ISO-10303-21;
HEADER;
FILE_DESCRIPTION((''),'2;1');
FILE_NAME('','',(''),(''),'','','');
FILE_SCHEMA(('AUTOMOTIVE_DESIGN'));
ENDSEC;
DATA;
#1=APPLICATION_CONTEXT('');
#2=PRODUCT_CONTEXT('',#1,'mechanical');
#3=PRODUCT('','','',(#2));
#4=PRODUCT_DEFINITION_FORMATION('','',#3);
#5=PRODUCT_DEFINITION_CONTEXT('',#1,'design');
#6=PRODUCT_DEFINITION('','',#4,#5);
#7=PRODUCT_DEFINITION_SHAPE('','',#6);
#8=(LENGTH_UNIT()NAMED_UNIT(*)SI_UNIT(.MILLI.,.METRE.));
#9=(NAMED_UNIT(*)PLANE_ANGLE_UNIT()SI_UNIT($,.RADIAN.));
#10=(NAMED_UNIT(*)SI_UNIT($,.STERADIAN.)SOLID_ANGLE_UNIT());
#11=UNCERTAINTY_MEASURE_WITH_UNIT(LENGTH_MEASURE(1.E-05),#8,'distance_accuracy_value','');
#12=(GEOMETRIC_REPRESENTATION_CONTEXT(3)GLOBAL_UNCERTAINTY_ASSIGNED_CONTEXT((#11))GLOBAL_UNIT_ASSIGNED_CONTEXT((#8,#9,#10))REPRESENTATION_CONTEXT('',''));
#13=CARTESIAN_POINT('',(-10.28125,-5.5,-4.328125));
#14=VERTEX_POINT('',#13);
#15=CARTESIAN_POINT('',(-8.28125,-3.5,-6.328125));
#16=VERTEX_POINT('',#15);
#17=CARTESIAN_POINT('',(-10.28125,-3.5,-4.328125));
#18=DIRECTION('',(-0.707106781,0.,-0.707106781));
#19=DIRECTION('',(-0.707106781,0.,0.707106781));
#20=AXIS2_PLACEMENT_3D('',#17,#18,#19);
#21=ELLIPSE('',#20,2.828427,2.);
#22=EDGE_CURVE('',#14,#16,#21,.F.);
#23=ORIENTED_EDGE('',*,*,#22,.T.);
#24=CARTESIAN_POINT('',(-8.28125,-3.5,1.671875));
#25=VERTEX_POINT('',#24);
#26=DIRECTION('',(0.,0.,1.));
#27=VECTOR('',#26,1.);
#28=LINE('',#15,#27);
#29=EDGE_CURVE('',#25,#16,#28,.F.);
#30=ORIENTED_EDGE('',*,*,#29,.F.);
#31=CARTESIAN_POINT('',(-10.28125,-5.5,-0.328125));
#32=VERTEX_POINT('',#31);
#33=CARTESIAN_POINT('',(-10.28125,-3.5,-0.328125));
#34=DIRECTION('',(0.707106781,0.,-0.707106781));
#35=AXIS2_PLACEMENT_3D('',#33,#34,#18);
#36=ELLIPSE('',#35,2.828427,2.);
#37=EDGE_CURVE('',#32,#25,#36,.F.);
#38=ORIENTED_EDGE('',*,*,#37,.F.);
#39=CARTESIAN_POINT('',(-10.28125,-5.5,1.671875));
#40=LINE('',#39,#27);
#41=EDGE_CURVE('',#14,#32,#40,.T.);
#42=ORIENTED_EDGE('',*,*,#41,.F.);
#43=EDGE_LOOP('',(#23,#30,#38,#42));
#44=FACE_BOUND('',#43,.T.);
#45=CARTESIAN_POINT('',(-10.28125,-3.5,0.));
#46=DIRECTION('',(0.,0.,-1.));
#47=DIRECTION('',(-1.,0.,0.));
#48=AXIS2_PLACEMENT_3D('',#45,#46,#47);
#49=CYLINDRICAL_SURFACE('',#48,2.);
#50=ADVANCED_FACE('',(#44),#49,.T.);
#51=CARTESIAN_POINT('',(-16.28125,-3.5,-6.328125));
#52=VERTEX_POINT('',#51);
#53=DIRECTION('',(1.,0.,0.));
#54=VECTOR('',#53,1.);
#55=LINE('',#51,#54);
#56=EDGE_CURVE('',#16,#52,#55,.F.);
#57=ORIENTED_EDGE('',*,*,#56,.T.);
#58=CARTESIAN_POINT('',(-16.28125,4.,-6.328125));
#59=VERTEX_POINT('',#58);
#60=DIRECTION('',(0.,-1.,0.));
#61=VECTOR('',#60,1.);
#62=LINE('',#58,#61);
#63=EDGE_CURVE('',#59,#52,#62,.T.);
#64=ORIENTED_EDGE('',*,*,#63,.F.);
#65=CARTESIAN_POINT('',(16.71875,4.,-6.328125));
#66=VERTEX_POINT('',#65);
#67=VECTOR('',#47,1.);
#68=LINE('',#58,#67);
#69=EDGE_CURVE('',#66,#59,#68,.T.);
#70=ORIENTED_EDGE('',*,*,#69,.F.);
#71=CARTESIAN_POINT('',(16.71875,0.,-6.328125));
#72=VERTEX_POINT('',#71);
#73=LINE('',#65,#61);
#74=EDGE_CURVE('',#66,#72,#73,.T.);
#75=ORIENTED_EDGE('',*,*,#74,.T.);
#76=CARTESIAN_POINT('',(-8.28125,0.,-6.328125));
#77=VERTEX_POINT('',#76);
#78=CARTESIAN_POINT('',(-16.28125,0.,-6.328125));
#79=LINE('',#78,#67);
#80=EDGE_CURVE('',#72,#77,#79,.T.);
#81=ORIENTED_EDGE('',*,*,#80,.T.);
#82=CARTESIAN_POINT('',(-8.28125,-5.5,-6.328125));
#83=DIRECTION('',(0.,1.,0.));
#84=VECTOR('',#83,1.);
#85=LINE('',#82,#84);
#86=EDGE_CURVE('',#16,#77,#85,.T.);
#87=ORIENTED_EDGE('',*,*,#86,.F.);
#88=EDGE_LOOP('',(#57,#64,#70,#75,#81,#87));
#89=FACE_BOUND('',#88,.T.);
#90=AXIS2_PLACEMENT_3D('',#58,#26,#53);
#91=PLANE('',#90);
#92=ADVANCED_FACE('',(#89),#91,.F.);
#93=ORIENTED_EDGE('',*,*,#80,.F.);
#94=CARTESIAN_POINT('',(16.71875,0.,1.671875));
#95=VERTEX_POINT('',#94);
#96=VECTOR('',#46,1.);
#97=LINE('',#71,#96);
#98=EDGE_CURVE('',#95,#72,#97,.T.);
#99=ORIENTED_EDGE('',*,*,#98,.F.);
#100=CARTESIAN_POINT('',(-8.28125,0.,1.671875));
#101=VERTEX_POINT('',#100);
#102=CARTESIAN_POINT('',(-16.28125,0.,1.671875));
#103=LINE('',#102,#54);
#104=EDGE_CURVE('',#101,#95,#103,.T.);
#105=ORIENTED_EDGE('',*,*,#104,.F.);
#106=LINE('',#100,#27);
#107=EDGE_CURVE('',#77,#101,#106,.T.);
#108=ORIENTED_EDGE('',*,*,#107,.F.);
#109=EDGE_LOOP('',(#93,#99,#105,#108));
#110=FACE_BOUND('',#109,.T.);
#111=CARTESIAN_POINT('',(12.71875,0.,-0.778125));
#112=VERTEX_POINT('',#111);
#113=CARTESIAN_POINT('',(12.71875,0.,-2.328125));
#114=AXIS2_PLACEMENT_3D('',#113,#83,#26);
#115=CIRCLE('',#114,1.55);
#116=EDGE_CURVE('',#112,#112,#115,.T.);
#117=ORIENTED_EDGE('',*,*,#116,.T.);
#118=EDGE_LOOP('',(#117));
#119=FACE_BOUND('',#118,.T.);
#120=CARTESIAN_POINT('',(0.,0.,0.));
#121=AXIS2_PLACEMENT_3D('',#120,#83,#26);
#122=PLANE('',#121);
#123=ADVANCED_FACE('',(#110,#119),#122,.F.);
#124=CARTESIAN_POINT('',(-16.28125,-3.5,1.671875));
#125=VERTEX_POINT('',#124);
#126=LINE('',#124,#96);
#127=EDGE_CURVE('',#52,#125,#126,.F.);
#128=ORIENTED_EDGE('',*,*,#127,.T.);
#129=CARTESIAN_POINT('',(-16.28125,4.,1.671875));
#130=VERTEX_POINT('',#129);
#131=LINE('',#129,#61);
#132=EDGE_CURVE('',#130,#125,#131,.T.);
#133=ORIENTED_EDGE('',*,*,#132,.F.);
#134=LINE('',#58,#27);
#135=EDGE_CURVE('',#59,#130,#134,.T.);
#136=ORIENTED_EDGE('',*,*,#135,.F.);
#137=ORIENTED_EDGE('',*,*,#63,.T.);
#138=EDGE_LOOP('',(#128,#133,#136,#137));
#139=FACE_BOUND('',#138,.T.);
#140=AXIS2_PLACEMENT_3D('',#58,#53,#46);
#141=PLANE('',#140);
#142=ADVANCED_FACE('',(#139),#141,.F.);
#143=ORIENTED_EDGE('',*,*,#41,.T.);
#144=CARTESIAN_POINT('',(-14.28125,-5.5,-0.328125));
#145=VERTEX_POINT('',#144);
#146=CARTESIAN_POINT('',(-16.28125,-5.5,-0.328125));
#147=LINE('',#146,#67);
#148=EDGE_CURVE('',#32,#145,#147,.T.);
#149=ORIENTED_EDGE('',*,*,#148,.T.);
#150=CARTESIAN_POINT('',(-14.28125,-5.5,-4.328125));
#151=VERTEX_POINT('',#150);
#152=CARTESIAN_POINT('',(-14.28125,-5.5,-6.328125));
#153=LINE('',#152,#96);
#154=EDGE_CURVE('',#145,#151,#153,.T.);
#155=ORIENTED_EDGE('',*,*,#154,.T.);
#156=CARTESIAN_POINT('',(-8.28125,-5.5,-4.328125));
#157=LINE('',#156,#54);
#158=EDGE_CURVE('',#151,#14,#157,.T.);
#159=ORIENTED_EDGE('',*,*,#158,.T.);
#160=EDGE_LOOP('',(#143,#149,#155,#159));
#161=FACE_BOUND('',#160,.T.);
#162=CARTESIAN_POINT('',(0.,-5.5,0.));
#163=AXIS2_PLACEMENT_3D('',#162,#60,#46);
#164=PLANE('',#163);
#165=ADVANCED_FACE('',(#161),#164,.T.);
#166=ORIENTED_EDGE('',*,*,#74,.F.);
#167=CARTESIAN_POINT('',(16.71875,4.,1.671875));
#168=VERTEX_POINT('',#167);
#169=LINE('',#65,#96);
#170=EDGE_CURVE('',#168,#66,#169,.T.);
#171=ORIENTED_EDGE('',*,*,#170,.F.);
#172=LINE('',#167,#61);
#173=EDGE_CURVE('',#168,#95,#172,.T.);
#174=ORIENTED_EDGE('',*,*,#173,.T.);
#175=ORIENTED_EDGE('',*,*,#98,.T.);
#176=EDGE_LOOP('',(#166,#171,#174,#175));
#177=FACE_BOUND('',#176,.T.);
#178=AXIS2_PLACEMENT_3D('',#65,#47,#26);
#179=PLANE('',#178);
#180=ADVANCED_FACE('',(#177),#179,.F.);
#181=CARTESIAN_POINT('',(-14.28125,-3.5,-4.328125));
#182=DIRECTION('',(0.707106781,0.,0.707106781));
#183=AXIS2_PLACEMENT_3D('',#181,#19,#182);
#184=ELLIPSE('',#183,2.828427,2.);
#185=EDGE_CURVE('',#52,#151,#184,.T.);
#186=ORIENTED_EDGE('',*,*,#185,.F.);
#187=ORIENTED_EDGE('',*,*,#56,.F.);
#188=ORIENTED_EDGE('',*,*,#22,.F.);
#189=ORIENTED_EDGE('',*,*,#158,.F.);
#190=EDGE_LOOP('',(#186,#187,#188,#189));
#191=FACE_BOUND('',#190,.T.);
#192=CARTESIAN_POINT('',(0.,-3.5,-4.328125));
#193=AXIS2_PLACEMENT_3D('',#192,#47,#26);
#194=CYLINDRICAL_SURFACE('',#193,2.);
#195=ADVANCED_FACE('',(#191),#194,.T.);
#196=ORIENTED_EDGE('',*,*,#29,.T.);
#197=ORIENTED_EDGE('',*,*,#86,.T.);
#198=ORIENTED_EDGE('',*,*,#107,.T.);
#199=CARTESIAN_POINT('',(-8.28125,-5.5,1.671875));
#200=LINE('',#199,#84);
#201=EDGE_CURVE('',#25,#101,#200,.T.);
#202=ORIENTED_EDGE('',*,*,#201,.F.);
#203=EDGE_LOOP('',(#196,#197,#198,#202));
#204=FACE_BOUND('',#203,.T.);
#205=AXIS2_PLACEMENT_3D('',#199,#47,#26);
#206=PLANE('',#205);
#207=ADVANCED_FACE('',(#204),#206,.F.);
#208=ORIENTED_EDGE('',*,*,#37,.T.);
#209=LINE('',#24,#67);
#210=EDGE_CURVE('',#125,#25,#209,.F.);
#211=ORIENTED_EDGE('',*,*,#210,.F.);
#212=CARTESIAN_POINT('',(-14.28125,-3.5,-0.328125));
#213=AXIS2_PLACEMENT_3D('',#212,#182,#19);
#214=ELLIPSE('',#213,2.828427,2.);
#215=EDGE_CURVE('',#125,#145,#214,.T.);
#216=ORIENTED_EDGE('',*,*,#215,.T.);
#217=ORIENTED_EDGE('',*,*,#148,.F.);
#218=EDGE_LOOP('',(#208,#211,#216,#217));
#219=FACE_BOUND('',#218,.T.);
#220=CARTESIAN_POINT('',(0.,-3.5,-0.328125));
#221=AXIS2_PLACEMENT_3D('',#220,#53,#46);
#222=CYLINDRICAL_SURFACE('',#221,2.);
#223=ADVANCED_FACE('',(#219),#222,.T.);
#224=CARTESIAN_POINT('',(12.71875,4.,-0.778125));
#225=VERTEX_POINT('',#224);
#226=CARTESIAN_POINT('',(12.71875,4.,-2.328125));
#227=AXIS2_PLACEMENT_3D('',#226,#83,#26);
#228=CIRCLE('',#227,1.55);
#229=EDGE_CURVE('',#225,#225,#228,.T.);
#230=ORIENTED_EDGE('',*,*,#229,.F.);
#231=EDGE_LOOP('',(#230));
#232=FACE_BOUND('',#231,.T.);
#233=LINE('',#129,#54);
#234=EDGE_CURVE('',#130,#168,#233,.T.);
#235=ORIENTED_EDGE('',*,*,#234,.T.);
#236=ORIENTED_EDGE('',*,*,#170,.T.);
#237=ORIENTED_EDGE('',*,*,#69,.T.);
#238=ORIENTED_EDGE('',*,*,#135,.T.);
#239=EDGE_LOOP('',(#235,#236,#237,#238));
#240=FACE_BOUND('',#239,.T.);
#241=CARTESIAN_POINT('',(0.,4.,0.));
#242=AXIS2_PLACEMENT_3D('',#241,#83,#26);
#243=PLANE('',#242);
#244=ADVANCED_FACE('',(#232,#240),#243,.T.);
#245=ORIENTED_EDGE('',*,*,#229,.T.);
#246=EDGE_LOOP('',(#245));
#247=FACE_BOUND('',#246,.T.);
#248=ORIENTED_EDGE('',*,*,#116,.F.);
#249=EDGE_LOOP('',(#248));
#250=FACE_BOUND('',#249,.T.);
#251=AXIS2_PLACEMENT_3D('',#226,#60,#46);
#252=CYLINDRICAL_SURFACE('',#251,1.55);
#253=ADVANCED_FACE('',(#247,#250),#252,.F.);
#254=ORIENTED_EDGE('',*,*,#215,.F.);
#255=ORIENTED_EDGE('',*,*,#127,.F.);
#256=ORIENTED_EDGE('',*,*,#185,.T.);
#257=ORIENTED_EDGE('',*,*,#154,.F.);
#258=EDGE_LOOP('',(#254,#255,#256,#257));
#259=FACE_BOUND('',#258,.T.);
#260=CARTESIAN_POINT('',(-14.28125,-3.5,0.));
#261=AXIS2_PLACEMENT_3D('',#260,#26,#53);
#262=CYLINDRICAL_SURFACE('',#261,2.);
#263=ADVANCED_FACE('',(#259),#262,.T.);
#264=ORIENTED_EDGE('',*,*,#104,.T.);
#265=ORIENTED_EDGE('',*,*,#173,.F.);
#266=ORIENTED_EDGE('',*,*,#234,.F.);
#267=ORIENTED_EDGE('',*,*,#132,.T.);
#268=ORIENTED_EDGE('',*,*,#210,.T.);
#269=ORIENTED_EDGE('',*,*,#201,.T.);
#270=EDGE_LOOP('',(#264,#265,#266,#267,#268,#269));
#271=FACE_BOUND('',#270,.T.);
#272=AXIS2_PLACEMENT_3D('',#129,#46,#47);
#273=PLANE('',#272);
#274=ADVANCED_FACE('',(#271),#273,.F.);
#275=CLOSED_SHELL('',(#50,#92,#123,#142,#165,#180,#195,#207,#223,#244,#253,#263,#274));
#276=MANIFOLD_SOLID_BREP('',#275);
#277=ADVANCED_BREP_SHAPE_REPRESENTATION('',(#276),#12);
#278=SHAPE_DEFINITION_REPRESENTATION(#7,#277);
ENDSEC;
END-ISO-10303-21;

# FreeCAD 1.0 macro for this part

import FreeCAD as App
import Part
import Sketcher

V = App.Vector


def edges_at(feature, points):
    """Names of the edges that pass closest to the given points."""
    edges = feature.Shape.Edges
    near = lambda p: min(range(len(edges)), key=lambda i: edges[i].distToShape(Part.Vertex(*p))[0])
    return sorted({f"Edge{near(p) + 1}" for p in points})


def add_polygon(sketch, points):
    """Adds a closed chain of lines whose ends are joined by coincident constraints."""
    first, n = sketch.GeometryCount, len(points)
    for a, b in zip(points, points[1:] + points[:1]):
        sketch.addGeometry(Part.LineSegment(App.Vector(*a, 0), App.Vector(*b, 0)), False)
    for i in range(n):
        sketch.addConstraint(Sketcher.Constraint("Coincident", first + i, 2, first + (i + 1) % n, 1))

doc = App.newDocument("Part")
body = doc.addObject("PartDesign::Body", "Body")

# Sketch on XZ plane
sketch1 = body.newObject("Sketcher::SketchObject", "Sketch")
sketch1.AttachmentSupport = (doc.getObject("XZ_Plane"), [""])
sketch1.MapMode = "FlatFace"
add_polygon(sketch1, [(-16.3, -6.3), (-16.3, 1.7), (16.7, 1.7), (16.7, -6.3)])  # lines 0-3
sketch1.addGeometry(Part.Circle(V(12.7, -2.3, 0), V(0, 0, 1), 1.6), False)  # 4
sketch1.addConstraint([
    Sketcher.Constraint("Vertical", 0),
    Sketcher.Constraint("Horizontal", 1),
    Sketcher.Constraint("Vertical", 2),
    Sketcher.Constraint("Horizontal", 3),
    Sketcher.Constraint("Diameter", 4, 3.1),
    Sketcher.Constraint("DistanceX", 1, 1, 1, 2, 33.0),
    Sketcher.Constraint("DistanceY", 0, 1, 0, 2, 8.0),
    Sketcher.Constraint("DistanceX", 0, 2, 4, 3, 29.0),
    Sketcher.Constraint("DistanceY", 4, 3, 0, 2, 4.0),
    Sketcher.Constraint("DistanceX", -1, 1, 4, 3, 12.71875),
    Sketcher.Constraint("DistanceY", 4, 3, -1, 1, 2.328125),
])
pad1 = body.newObject("PartDesign::Pad", "Pad")
pad1.Profile = sketch1
pad1.Length = 4
pad1.Reversed = True

# Sketch on XZ plane
sketch2 = body.newObject("Sketcher::SketchObject", "Sketch001")
sketch2.AttachmentSupport = (doc.getObject("XZ_Plane"), [""])
sketch2.MapMode = "FlatFace"
add_polygon(sketch2, [(-16, 2), (-16, -6), (-8, -6), (-8, 2)])  # lines 0-3
sketch2.addConstraint([
    Sketcher.Constraint("Vertical", 0),
    Sketcher.Constraint("Horizontal", 1),
    Sketcher.Constraint("Vertical", 2),
    Sketcher.Constraint("Horizontal", 3),
    Sketcher.Constraint("Equal", 3, 0),
    Sketcher.Constraint("DistanceX", 1, 1, 1, 2, 8.0),
    Sketcher.Constraint("DistanceX", 0, 2, -1, 1, 16.28125),
    Sketcher.Constraint("DistanceY", 0, 2, -1, 1, 6.328125),
])
pad2 = body.newObject("PartDesign::Pad", "Pad001")
pad2.Profile = sketch2
pad2.Length = 5.5
doc.recompute()

fillet = body.newObject("PartDesign::Fillet", "Fillet")
fillet.Base = (pad2, edges_at(pad2, [
    (-16.281, -5.5, -2.328),
    (-12.281, -5.5, -6.328),
    (-8.281, -5.5, -2.328),
    (-12.281, -5.5, 1.672),
]))
fillet.Radius = 2

doc.recompute()
